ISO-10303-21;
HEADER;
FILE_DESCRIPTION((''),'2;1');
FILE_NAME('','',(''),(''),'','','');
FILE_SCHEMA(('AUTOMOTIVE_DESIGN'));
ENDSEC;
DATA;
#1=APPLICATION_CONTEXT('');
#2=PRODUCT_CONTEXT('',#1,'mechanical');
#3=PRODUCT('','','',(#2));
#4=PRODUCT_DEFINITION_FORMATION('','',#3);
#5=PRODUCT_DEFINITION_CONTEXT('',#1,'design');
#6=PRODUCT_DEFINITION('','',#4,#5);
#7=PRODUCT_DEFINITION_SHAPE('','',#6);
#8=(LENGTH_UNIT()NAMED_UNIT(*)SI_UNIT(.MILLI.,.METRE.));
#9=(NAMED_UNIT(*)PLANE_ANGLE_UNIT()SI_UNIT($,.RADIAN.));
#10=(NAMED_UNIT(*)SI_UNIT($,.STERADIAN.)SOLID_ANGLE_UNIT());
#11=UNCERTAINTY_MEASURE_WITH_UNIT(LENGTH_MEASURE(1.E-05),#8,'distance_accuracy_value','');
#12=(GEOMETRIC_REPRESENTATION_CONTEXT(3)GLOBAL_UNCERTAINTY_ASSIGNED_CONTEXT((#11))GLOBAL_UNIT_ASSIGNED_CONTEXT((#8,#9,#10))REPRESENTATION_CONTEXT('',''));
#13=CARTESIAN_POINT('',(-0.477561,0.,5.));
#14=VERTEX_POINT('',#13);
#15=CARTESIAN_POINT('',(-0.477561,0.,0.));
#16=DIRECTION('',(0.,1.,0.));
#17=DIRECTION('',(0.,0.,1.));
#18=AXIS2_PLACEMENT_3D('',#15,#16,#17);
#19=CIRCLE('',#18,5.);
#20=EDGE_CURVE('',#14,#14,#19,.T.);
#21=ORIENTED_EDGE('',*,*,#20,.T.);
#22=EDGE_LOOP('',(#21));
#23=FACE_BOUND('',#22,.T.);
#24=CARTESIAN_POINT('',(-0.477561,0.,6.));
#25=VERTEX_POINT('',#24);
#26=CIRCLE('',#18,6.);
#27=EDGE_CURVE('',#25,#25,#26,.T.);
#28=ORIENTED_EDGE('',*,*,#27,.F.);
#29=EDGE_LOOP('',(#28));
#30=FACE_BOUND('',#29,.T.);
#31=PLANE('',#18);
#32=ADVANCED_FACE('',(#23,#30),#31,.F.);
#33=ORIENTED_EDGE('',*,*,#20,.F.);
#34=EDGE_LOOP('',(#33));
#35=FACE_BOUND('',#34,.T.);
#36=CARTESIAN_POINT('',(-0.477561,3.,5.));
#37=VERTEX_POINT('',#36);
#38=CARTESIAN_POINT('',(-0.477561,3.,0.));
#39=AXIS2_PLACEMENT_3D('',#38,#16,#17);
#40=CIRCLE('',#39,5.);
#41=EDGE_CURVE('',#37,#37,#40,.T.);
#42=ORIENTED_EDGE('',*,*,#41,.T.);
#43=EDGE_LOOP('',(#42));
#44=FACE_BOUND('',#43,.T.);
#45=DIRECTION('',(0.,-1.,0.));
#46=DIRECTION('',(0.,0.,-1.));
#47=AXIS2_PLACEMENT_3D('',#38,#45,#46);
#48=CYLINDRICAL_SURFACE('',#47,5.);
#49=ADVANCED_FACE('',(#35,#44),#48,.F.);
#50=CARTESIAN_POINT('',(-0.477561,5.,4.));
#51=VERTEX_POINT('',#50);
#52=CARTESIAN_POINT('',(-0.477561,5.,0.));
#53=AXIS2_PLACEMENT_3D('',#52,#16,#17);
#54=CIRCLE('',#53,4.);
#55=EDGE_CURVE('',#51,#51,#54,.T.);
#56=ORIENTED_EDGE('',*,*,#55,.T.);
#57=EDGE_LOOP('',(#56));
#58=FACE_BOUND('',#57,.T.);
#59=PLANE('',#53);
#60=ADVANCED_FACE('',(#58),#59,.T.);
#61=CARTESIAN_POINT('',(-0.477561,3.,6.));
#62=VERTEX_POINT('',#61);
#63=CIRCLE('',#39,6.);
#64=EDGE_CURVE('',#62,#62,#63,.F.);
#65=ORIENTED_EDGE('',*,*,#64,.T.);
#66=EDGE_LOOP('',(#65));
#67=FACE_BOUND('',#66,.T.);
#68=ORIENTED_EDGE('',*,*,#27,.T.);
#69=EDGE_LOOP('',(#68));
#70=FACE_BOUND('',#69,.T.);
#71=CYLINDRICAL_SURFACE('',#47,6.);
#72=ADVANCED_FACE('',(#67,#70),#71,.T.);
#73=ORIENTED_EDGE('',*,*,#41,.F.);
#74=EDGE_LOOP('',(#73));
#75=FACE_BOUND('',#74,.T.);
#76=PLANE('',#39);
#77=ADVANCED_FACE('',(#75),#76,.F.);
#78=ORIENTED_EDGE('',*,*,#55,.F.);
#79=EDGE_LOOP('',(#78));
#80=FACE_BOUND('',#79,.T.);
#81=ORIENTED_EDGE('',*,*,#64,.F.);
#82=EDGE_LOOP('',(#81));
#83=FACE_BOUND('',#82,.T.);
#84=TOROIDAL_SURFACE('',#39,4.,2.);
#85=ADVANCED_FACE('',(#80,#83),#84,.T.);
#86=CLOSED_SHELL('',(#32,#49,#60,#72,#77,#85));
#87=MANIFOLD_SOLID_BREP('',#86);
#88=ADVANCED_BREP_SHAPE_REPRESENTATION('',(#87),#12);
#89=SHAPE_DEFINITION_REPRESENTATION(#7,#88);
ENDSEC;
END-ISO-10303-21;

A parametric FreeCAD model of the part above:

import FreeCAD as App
import Part
import Sketcher
Q = App.Units.Quantity


def edges_at(feature, points):
    """Names of the edges that pass closest to the given points."""
    edges = feature.Shape.Edges
    near = lambda p: min(range(len(edges)), key=lambda i: edges[i].distToShape(Part.Vertex(*p))[0])
    return sorted({f"Edge{near(p) + 1}" for p in points})

doc = App.newDocument("Part")
body = doc.addObject("PartDesign::Body", "Body")

# Sketch on XZ plane
sketch1 = body.newObject("Sketcher::SketchObject", "Sketch")
sketch1.AttachmentSupport = (doc.getObject("XZ_Plane"), [""])
sketch1.MapMode = "FlatFace"
sketch1.addGeometry(Part.Circle(App.Vector(0, 0, 0), App.Vector(0, 0, 1), 6), False)
sketch1.addGeometry(Part.Circle(App.Vector(0, 0, 0), App.Vector(0, 0, 1), 5), False)
sketch1.addConstraint(Sketcher.Constraint("Coincident", 1, 3, 0, 3))
sketch1.addConstraint(Sketcher.Constraint("PointOnObject", 0, 3, -1))
sketch1.addConstraint(Sketcher.Constraint("Diameter", 0, Q("12 mm")))
sketch1.addConstraint(Sketcher.Constraint("Diameter", 1, Q("10 mm")))
sketch1.addConstraint(Sketcher.Constraint("DistanceX", 0, 3, -1, 1, Q("0.477561 mm")))
pad1 = body.newObject("PartDesign::Pad", "Pad")
pad1.Profile = sketch1
pad1.Length = 3
pad1.Reversed = True

# Sketch on XZ plane
sketch2 = body.newObject("Sketcher::SketchObject", "Sketch001")
sketch2.AttachmentSupport = (doc.getObject("XZ_Plane"), [""])
sketch2.MapMode = "FlatFace"
sketch2.AttachmentOffset = App.Placement(App.Vector(0, 0, -3), App.Rotation())
sketch2.addGeometry(Part.Circle(App.Vector(0, 0, 0), App.Vector(0, 0, 1), 6), False)
sketch2.addConstraint(Sketcher.Constraint("PointOnObject", 0, 3, -1))
sketch2.addConstraint(Sketcher.Constraint("Diameter", 0, Q("12 mm")))
sketch2.addConstraint(Sketcher.Constraint("DistanceX", 0, 3, -1, 1, Q("0.477561 mm")))
pad2 = body.newObject("PartDesign::Pad", "Pad001")
pad2.Profile = sketch2
pad2.Length = 2
pad2.Reversed = True
doc.recompute()

fillet = body.newObject("PartDesign::Fillet", "Fillet")
fillet.Base = (pad2, edges_at(pad2, [(-6.478, 5, 0)]))
fillet.Radius = 2

doc.recompute()
